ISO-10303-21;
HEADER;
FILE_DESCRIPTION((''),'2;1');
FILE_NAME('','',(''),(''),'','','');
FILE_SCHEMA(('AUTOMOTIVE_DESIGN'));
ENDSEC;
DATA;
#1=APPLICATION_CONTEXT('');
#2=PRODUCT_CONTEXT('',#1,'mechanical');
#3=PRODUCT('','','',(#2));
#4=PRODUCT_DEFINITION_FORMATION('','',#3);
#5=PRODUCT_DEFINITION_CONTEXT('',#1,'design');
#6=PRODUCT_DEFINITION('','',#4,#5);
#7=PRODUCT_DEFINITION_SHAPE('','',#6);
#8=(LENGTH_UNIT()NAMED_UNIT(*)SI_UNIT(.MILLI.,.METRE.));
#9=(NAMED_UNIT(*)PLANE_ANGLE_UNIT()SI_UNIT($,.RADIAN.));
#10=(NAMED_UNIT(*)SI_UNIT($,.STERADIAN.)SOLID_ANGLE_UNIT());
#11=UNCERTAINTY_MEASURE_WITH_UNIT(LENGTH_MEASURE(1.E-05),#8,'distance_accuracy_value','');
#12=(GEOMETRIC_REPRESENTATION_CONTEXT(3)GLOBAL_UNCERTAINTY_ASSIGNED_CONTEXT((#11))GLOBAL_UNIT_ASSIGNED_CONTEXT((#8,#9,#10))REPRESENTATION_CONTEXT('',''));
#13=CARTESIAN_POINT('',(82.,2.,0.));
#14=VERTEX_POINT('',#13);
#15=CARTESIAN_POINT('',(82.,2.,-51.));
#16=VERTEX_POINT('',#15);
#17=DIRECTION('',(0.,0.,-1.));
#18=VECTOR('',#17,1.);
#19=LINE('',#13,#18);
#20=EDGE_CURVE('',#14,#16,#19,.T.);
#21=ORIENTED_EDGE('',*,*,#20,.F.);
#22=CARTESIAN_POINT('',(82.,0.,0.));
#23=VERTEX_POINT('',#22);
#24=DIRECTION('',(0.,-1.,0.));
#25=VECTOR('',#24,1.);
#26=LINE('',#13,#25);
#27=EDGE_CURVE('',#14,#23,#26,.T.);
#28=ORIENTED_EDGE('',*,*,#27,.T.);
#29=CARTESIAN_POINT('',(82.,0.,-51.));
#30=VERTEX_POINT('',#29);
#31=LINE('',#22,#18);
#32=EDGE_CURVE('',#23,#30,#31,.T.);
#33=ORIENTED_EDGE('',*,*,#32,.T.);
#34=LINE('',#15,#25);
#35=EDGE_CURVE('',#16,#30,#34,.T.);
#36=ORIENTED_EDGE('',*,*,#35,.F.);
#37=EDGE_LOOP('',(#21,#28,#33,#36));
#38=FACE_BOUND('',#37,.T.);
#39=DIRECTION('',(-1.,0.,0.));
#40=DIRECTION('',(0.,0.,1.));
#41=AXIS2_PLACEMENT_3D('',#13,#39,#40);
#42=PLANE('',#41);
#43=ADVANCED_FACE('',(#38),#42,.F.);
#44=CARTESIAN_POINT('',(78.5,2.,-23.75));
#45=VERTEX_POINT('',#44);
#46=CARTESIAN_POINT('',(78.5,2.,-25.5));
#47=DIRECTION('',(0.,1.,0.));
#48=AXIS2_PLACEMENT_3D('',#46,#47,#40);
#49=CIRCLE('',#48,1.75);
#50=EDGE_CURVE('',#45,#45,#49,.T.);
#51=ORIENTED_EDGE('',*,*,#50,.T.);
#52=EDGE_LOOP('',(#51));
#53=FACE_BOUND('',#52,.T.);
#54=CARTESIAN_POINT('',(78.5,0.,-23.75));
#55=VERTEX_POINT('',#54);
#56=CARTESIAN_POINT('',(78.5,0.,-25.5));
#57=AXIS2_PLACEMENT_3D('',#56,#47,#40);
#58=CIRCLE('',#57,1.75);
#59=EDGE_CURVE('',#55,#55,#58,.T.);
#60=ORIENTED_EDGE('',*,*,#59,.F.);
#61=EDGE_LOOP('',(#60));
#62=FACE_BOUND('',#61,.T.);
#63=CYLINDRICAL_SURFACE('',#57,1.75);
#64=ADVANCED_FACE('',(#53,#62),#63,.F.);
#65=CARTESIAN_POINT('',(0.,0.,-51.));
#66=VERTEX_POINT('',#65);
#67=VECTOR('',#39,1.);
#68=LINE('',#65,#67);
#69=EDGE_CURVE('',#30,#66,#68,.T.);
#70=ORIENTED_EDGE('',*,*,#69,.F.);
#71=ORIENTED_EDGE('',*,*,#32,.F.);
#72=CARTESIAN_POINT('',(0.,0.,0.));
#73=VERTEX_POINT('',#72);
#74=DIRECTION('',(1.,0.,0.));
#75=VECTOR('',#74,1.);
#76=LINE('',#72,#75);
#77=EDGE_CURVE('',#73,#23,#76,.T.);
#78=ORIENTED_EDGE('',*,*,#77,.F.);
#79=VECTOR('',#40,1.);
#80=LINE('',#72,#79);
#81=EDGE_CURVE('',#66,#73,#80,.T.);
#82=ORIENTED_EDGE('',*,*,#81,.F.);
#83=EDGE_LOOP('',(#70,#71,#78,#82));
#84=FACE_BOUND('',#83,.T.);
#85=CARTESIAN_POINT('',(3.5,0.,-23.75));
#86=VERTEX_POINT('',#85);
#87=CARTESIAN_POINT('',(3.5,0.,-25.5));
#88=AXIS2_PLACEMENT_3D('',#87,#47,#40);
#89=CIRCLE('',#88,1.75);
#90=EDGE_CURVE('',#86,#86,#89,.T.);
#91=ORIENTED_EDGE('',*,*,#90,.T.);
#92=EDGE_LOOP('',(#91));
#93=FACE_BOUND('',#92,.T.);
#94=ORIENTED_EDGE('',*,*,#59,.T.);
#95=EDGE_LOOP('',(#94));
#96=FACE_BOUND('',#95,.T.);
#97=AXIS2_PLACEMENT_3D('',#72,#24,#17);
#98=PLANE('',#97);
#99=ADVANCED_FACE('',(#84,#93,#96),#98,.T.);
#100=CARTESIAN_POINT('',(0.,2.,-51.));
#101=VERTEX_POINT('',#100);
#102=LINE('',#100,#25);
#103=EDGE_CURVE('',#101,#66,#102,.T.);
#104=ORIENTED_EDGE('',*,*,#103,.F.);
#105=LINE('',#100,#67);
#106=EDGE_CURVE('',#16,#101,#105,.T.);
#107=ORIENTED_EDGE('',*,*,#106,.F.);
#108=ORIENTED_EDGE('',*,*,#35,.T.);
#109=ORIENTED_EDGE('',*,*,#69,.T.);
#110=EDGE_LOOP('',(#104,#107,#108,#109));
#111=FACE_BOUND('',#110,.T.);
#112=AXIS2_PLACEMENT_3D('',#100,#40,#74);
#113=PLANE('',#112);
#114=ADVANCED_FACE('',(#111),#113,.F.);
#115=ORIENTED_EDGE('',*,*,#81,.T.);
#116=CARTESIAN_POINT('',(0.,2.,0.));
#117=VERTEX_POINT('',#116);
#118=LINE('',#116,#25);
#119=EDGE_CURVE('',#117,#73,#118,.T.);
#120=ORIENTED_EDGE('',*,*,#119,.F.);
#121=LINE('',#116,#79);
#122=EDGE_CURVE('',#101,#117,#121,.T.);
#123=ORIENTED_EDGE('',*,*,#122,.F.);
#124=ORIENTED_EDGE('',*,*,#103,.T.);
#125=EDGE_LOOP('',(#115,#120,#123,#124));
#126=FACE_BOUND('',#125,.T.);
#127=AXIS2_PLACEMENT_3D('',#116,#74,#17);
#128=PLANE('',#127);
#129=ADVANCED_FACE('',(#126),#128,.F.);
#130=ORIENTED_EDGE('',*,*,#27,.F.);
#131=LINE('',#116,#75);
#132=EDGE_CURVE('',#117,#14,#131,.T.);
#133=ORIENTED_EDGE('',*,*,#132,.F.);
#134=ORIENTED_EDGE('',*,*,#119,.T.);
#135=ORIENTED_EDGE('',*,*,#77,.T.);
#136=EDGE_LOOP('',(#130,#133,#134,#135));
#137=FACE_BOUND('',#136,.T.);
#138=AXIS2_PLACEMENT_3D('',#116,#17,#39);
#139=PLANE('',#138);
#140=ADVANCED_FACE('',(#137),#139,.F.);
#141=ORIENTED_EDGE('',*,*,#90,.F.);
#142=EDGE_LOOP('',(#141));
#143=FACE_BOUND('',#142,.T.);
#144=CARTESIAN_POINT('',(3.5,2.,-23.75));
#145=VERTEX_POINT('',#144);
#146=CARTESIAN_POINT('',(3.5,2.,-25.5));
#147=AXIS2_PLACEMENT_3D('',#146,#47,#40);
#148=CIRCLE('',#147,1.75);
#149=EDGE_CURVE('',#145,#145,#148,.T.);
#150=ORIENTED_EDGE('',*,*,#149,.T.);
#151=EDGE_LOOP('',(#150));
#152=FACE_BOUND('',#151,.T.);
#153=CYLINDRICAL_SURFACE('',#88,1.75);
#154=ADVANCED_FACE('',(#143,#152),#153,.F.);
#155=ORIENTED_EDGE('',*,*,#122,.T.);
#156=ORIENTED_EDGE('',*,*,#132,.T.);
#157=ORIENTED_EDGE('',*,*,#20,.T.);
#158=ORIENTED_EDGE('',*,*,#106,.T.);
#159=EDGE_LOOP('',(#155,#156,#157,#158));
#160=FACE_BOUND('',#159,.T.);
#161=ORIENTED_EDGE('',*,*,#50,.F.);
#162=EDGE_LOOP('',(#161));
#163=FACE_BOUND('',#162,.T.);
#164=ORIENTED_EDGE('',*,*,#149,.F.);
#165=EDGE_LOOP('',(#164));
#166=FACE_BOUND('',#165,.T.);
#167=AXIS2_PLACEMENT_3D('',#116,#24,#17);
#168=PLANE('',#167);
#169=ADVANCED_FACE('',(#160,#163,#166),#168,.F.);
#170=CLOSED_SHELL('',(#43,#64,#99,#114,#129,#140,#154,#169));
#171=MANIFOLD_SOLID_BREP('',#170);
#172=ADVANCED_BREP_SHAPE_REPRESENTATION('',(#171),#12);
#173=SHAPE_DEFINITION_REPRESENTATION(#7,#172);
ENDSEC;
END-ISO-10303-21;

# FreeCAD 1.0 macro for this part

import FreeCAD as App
import Part
import Sketcher
from FreeCAD import Vector

doc = App.newDocument("Part")
body = doc.addObject("PartDesign::Body", "Body")

# Sketch on XZ plane
sketch1 = body.newObject("Sketcher::SketchObject", "Sketch")
sketch1.AttachmentSupport = (doc.getObject("XZ_Plane"), [""])
sketch1.MapMode = "FlatFace"
sketch1.addGeometry(Part.LineSegment(Vector(0, -51, 0), Vector(0, 0, 0)), False)
sketch1.addGeometry(Part.LineSegment(Vector(0, 0, 0), Vector(82, 0, 0)), False)
sketch1.addGeometry(Part.LineSegment(Vector(82, 0, 0), Vector(82, -51, 0)), False)
sketch1.addGeometry(Part.LineSegment(Vector(82, -51, 0), Vector(0, -51, 0)), False)
sketch1.addConstraint(Sketcher.Constraint("Coincident", 0, 2, 1, 1))
sketch1.addConstraint(Sketcher.Constraint("Coincident", 1, 2, 2, 1))
sketch1.addConstraint(Sketcher.Constraint("Coincident", 2, 2, 3, 1))
sketch1.addConstraint(Sketcher.Constraint("Coincident", 3, 2, 0, 1))
sketch1.addConstraint(Sketcher.Constraint("Vertical", 0))
sketch1.addConstraint(Sketcher.Constraint("Horizontal", 1))
sketch1.addConstraint(Sketcher.Constraint("Vertical", 2))
sketch1.addConstraint(Sketcher.Constraint("Horizontal", 3))
sketch1.addConstraint(Sketcher.Constraint("Coincident", 0, 2, -1, 1))
sketch1.addConstraint(Sketcher.Constraint("DistanceX", 1, 1, 1, 2, 82.0))
sketch1.addConstraint(Sketcher.Constraint("DistanceY", 0, 1, 0, 2, 51.0))
pad1 = body.newObject("PartDesign::Pad", "Pad")
pad1.Profile = sketch1
pad1.Length = 2
pad1.Reversed = True

# Sketch on XZ plane
sketch2 = body.newObject("Sketcher::SketchObject", "Sketch001")
sketch2.AttachmentSupport = (doc.getObject("XZ_Plane"), [""])
sketch2.MapMode = "FlatFace"
sketch2.AttachmentOffset = App.Placement(Vector(0, 0, -2), App.Rotation())
sketch2.addGeometry(Part.Circle(Vector(3.5, -25.5, 0), Vector(0, 0, 1), 1.8), False)
sketch2.addGeometry(Part.Circle(Vector(78.5, -25.5, 0), Vector(0, 0, 1), 1.8), False)
sketch2.addConstraint(Sketcher.Constraint("Equal", 0, 1))
sketch2.addConstraint(Sketcher.Constraint("Horizontal", 0, 3, 1, 3))
sketch2.addConstraint(Sketcher.Constraint("Diameter", 0, 3.5))
sketch2.addConstraint(Sketcher.Constraint("DistanceX", 0, 3, 1, 3, 75.0))
sketch2.addConstraint(Sketcher.Constraint("DistanceX", -1, 1, 0, 3, 3.5))
sketch2.addConstraint(Sketcher.Constraint("DistanceY", 0, 3, -1, 1, 25.5))
pocket1 = body.newObject("PartDesign::Pocket", "Pocket")
pocket1.Profile = sketch2
pocket1.Length = 2
pocket1.Reversed = True

doc.recompute()
